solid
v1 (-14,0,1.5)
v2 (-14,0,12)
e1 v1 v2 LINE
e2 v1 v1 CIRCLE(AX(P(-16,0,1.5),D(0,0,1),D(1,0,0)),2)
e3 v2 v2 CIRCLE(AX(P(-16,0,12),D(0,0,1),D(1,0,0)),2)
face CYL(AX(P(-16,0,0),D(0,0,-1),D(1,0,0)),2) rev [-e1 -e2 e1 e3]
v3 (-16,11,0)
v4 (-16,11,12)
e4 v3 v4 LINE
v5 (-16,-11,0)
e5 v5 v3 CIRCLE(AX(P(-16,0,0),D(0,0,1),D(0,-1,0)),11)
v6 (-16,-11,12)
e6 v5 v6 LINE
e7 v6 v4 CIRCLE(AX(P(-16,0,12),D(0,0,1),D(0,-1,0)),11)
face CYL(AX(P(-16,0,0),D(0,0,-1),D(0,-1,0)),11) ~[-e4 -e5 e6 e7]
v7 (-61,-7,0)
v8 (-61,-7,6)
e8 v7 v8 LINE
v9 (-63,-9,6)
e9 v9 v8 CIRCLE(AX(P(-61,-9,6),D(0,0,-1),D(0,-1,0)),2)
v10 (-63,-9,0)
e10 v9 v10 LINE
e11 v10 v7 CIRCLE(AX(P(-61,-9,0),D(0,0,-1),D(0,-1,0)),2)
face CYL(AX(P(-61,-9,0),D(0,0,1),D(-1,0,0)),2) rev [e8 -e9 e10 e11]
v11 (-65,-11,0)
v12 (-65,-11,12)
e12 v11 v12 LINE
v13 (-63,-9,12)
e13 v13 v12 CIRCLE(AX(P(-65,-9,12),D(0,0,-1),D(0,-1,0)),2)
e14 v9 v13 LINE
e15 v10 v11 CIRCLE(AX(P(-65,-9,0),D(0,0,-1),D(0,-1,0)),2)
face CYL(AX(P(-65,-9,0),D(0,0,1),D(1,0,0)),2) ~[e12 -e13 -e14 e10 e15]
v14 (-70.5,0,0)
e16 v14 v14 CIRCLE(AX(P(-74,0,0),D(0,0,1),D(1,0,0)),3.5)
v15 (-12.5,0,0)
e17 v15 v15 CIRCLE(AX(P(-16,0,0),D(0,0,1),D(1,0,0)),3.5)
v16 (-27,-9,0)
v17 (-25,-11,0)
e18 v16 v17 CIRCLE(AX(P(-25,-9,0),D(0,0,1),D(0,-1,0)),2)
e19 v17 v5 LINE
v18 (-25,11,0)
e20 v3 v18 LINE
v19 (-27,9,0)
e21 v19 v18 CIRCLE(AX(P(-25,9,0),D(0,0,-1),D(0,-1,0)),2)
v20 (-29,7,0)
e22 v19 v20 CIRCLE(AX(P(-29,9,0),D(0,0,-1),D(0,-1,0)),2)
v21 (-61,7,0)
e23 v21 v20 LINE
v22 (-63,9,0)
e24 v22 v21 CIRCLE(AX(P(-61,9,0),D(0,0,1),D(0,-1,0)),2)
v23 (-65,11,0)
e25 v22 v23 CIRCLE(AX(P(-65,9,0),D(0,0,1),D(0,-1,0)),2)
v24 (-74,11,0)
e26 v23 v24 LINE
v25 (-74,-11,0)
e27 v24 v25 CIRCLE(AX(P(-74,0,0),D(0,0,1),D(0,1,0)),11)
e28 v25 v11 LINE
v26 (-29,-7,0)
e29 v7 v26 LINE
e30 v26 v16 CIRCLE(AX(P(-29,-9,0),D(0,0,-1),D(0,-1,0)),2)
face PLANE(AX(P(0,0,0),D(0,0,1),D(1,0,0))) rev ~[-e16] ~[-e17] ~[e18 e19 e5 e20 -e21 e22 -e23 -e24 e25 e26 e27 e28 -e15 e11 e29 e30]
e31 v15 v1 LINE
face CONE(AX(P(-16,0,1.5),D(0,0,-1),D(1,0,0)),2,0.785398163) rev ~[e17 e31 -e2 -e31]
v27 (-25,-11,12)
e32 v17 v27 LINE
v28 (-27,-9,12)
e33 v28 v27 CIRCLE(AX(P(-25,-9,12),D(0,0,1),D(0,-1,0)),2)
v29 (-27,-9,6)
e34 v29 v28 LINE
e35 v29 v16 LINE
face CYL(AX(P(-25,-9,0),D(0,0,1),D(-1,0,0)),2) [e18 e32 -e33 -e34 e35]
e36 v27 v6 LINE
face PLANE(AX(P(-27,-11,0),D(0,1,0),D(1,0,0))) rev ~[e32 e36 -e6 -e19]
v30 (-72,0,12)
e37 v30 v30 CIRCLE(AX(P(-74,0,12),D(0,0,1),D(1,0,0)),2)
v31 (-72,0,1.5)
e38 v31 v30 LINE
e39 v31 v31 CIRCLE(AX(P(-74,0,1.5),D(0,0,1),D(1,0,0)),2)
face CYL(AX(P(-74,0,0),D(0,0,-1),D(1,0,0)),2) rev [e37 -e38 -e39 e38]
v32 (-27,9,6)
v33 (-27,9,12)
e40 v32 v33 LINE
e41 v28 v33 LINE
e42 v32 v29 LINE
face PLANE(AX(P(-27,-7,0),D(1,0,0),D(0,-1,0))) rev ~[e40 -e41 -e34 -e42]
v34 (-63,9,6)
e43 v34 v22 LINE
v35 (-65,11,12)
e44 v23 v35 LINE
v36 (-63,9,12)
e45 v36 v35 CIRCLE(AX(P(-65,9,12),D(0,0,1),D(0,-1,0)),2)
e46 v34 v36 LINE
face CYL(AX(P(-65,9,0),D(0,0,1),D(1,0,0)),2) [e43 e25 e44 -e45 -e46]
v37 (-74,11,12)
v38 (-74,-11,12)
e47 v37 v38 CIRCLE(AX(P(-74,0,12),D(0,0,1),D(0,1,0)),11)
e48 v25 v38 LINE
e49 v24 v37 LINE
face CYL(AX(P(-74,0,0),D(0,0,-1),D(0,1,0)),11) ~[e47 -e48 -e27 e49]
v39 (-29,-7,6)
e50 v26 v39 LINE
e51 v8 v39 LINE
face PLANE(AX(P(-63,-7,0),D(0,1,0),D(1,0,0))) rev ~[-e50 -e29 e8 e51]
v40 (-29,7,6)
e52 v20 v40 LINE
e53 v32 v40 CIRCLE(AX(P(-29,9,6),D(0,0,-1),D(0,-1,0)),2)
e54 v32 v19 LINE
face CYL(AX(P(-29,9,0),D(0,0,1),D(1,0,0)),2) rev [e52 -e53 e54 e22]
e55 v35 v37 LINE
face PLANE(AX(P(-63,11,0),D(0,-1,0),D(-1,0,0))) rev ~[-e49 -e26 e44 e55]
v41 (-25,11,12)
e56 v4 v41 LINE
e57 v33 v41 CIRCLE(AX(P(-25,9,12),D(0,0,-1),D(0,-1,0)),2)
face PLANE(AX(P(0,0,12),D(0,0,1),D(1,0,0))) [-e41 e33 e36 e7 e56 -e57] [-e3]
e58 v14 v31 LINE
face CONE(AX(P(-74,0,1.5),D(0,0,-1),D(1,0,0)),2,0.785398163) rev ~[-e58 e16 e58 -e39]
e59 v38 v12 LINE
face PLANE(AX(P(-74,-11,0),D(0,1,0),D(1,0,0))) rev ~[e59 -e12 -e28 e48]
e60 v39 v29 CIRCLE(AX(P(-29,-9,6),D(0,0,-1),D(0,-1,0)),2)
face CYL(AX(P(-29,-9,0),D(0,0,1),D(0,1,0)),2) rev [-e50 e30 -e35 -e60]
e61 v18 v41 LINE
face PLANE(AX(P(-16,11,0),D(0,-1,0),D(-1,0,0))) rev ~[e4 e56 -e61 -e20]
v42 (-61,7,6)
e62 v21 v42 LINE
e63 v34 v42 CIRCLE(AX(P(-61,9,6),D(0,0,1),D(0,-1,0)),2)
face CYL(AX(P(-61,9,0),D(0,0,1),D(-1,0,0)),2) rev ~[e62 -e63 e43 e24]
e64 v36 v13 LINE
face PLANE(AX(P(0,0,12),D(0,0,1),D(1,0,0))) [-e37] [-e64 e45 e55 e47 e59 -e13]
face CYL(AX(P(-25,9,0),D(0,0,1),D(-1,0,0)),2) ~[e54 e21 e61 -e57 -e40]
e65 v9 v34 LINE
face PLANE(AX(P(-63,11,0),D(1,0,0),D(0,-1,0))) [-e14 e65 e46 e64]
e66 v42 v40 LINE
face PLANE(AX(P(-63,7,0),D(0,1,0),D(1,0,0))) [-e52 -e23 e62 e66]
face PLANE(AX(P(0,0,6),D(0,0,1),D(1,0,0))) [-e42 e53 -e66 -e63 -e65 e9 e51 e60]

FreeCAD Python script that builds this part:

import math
import FreeCAD as App
import Part
import Sketcher
Q = App.Units.Quantity


def edges_at(feature, points):
    """Names of the edges that pass closest to the given points."""
    edges = feature.Shape.Edges
    near = lambda p: min(range(len(edges)), key=lambda i: edges[i].distToShape(Part.Vertex(*p))[0])
    return sorted({f"Edge{near(p) + 1}" for p in points})

doc = App.newDocument("Part")
body = doc.addObject("PartDesign::Body", "Body")
body.AllowCompound = True

# Sketch on XY plane
sketch1 = body.newObject("Sketcher::SketchObject", "Sketch")
sketch1.AttachmentSupport = (doc.getObject("XY_Plane"), [""])
sketch1.MapMode = "FlatFace"
sketch1.addGeometry(Part.ArcOfCircle(Part.Circle(App.Vector(-74, 0, 0), App.Vector(0, 0, 1), 11), math.radians(90), math.radians(270)), False)
sketch1.addGeometry(Part.LineSegment(App.Vector(-74, -11, 0), App.Vector(-63, -11, 0)), False)
sketch1.addGeometry(Part.LineSegment(App.Vector(-63, -11, 0), App.Vector(-63, 11, 0)), False)
sketch1.addGeometry(Part.LineSegment(App.Vector(-63, 11, 0), App.Vector(-74, 11, 0)), False)
sketch1.addGeometry(Part.Circle(App.Vector(-74, 0, 0), App.Vector(0, 0, 1), 2), False)
sketch1.addGeometry(Part.LineSegment(App.Vector(-27, 11, 0), App.Vector(-27, -11, 0)), False)
sketch1.addGeometry(Part.LineSegment(App.Vector(-27, -11, 0), App.Vector(-16, -11, 0)), False)
sketch1.addGeometry(Part.ArcOfCircle(Part.Circle(App.Vector(-16, 0, 0), App.Vector(0, 0, 1), 11), math.radians(-90), math.radians(90)), False)
sketch1.addGeometry(Part.LineSegment(App.Vector(-16, 11, 0), App.Vector(-27, 11, 0)), False)
sketch1.addGeometry(Part.Circle(App.Vector(-16, 0, 0), App.Vector(0, 0, 1), 2), False)
sketch1.addConstraint(Sketcher.Constraint("Tangent", 0, 2, 1, 1))
sketch1.addConstraint(Sketcher.Constraint("Coincident", 1, 2, 2, 1))
sketch1.addConstraint(Sketcher.Constraint("Coincident", 2, 2, 3, 1))
sketch1.addConstraint(Sketcher.Constraint("Tangent", 3, 2, 0, 1))
sketch1.addConstraint(Sketcher.Constraint("Coincident", 5, 2, 6, 1))
sketch1.addConstraint(Sketcher.Constraint("Tangent", 6, 2, 7, 1))
sketch1.addConstraint(Sketcher.Constraint("Tangent", 7, 2, 8, 1))
sketch1.addConstraint(Sketcher.Constraint("Coincident", 8, 2, 5, 1))
sketch1.addConstraint(Sketcher.Constraint("Horizontal", 1))
sketch1.addConstraint(Sketcher.Constraint("Vertical", 2))
sketch1.addConstraint(Sketcher.Constraint("Horizontal", 3))
sketch1.addConstraint(Sketcher.Constraint("Vertical", 5))
sketch1.addConstraint(Sketcher.Constraint("Horizontal", 6))
sketch1.addConstraint(Sketcher.Constraint("Horizontal", 8))
sketch1.addConstraint(Sketcher.Constraint("Coincident", 4, 3, 0, 3))
sketch1.addConstraint(Sketcher.Constraint("Coincident", 9, 3, 7, 3))
sketch1.addConstraint(Sketcher.Constraint("Equal", 0, 7))
sketch1.addConstraint(Sketcher.Constraint("Equal", 4, 9))
sketch1.addConstraint(Sketcher.Constraint("PointOnObject", 0, 3, -1))
sketch1.addConstraint(Sketcher.Constraint("PointOnObject", 7, 3, -1))
sketch1.addConstraint(Sketcher.Constraint("Equal", 3, 6))
sketch1.addConstraint(Sketcher.Constraint("Diameter", 4, Q("4 mm")))
sketch1.addConstraint(Sketcher.Constraint("Radius", 0, Q("11 mm")))
sketch1.addConstraint(Sketcher.Constraint("DistanceX", 1, 1, 1, 2, Q("11 mm")))
sketch1.addConstraint(Sketcher.Constraint("DistanceX", 0, 3, -1, 1, Q("74 mm")))
sketch1.addConstraint(Sketcher.Constraint("DistanceX", 7, 3, -1, 1, Q("16 mm")))
pad1 = body.newObject("PartDesign::Pad", "Pad")
pad1.Profile = sketch1
pad1.Length = 12

# Sketch on XY plane
sketch2 = body.newObject("Sketcher::SketchObject", "Sketch001")
sketch2.AttachmentSupport = (doc.getObject("XY_Plane"), [""])
sketch2.MapMode = "FlatFace"
sketch2.addGeometry(Part.LineSegment(App.Vector(-63, 7, 0), App.Vector(-63, -7, 0)), False)
sketch2.addGeometry(Part.LineSegment(App.Vector(-63, -7, 0), App.Vector(-27, -7, 0)), False)
sketch2.addGeometry(Part.LineSegment(App.Vector(-27, -7, 0), App.Vector(-27, 7, 0)), False)
sketch2.addGeometry(Part.LineSegment(App.Vector(-27, 7, 0), App.Vector(-63, 7, 0)), False)
sketch2.addConstraint(Sketcher.Constraint("Coincident", 0, 2, 1, 1))
sketch2.addConstraint(Sketcher.Constraint("Coincident", 1, 2, 2, 1))
sketch2.addConstraint(Sketcher.Constraint("Coincident", 2, 2, 3, 1))
sketch2.addConstraint(Sketcher.Constraint("Coincident", 3, 2, 0, 1))
sketch2.addConstraint(Sketcher.Constraint("Vertical", 0))
sketch2.addConstraint(Sketcher.Constraint("Horizontal", 1))
sketch2.addConstraint(Sketcher.Constraint("Vertical", 2))
sketch2.addConstraint(Sketcher.Constraint("Horizontal", 3))
sketch2.addConstraint(Sketcher.Constraint("DistanceX", 1, 1, 1, 2, Q("36 mm")))
sketch2.addConstraint(Sketcher.Constraint("DistanceY", 0, 2, 0, 1, Q("14 mm")))
sketch2.addConstraint(Sketcher.Constraint("DistanceX", 0, 2, -1, 1, Q("63 mm")))
sketch2.addConstraint(Sketcher.Constraint("DistanceY", 0, 2, -1, 1, Q("7 mm")))
pad2 = body.newObject("PartDesign::Pad", "Pad001")
pad2.Profile = sketch2
pad2.Length = 6
doc.recompute()

chamfer = body.newObject("PartDesign::Chamfer", "Chamfer")
chamfer.Base = (pad2, edges_at(pad2, [(-75.865, 0.723, 0), (-17.865, 0.723, 0)]))
chamfer.Size = 1.5
doc.recompute()

fillet = body.newObject("PartDesign::Fillet", "Fillet")
fillet.Base = (chamfer, edges_at(chamfer, [
    (-63, -7, 3),
    (-27, -7, 3),
    (-27, 7, 3),
    (-63, 7, 3),
]))
fillet.Radius = 2
doc.recompute()

fillet2 = body.newObject("PartDesign::Fillet", "Fillet001")
fillet2.Base = (fillet, edges_at(fillet, [
    (-63, 11, 6),
    (-27, 11, 6),
    (-27, -11, 6),
    (-63, -11, 6),
]))
fillet2.Radius = 2

doc.recompute()
